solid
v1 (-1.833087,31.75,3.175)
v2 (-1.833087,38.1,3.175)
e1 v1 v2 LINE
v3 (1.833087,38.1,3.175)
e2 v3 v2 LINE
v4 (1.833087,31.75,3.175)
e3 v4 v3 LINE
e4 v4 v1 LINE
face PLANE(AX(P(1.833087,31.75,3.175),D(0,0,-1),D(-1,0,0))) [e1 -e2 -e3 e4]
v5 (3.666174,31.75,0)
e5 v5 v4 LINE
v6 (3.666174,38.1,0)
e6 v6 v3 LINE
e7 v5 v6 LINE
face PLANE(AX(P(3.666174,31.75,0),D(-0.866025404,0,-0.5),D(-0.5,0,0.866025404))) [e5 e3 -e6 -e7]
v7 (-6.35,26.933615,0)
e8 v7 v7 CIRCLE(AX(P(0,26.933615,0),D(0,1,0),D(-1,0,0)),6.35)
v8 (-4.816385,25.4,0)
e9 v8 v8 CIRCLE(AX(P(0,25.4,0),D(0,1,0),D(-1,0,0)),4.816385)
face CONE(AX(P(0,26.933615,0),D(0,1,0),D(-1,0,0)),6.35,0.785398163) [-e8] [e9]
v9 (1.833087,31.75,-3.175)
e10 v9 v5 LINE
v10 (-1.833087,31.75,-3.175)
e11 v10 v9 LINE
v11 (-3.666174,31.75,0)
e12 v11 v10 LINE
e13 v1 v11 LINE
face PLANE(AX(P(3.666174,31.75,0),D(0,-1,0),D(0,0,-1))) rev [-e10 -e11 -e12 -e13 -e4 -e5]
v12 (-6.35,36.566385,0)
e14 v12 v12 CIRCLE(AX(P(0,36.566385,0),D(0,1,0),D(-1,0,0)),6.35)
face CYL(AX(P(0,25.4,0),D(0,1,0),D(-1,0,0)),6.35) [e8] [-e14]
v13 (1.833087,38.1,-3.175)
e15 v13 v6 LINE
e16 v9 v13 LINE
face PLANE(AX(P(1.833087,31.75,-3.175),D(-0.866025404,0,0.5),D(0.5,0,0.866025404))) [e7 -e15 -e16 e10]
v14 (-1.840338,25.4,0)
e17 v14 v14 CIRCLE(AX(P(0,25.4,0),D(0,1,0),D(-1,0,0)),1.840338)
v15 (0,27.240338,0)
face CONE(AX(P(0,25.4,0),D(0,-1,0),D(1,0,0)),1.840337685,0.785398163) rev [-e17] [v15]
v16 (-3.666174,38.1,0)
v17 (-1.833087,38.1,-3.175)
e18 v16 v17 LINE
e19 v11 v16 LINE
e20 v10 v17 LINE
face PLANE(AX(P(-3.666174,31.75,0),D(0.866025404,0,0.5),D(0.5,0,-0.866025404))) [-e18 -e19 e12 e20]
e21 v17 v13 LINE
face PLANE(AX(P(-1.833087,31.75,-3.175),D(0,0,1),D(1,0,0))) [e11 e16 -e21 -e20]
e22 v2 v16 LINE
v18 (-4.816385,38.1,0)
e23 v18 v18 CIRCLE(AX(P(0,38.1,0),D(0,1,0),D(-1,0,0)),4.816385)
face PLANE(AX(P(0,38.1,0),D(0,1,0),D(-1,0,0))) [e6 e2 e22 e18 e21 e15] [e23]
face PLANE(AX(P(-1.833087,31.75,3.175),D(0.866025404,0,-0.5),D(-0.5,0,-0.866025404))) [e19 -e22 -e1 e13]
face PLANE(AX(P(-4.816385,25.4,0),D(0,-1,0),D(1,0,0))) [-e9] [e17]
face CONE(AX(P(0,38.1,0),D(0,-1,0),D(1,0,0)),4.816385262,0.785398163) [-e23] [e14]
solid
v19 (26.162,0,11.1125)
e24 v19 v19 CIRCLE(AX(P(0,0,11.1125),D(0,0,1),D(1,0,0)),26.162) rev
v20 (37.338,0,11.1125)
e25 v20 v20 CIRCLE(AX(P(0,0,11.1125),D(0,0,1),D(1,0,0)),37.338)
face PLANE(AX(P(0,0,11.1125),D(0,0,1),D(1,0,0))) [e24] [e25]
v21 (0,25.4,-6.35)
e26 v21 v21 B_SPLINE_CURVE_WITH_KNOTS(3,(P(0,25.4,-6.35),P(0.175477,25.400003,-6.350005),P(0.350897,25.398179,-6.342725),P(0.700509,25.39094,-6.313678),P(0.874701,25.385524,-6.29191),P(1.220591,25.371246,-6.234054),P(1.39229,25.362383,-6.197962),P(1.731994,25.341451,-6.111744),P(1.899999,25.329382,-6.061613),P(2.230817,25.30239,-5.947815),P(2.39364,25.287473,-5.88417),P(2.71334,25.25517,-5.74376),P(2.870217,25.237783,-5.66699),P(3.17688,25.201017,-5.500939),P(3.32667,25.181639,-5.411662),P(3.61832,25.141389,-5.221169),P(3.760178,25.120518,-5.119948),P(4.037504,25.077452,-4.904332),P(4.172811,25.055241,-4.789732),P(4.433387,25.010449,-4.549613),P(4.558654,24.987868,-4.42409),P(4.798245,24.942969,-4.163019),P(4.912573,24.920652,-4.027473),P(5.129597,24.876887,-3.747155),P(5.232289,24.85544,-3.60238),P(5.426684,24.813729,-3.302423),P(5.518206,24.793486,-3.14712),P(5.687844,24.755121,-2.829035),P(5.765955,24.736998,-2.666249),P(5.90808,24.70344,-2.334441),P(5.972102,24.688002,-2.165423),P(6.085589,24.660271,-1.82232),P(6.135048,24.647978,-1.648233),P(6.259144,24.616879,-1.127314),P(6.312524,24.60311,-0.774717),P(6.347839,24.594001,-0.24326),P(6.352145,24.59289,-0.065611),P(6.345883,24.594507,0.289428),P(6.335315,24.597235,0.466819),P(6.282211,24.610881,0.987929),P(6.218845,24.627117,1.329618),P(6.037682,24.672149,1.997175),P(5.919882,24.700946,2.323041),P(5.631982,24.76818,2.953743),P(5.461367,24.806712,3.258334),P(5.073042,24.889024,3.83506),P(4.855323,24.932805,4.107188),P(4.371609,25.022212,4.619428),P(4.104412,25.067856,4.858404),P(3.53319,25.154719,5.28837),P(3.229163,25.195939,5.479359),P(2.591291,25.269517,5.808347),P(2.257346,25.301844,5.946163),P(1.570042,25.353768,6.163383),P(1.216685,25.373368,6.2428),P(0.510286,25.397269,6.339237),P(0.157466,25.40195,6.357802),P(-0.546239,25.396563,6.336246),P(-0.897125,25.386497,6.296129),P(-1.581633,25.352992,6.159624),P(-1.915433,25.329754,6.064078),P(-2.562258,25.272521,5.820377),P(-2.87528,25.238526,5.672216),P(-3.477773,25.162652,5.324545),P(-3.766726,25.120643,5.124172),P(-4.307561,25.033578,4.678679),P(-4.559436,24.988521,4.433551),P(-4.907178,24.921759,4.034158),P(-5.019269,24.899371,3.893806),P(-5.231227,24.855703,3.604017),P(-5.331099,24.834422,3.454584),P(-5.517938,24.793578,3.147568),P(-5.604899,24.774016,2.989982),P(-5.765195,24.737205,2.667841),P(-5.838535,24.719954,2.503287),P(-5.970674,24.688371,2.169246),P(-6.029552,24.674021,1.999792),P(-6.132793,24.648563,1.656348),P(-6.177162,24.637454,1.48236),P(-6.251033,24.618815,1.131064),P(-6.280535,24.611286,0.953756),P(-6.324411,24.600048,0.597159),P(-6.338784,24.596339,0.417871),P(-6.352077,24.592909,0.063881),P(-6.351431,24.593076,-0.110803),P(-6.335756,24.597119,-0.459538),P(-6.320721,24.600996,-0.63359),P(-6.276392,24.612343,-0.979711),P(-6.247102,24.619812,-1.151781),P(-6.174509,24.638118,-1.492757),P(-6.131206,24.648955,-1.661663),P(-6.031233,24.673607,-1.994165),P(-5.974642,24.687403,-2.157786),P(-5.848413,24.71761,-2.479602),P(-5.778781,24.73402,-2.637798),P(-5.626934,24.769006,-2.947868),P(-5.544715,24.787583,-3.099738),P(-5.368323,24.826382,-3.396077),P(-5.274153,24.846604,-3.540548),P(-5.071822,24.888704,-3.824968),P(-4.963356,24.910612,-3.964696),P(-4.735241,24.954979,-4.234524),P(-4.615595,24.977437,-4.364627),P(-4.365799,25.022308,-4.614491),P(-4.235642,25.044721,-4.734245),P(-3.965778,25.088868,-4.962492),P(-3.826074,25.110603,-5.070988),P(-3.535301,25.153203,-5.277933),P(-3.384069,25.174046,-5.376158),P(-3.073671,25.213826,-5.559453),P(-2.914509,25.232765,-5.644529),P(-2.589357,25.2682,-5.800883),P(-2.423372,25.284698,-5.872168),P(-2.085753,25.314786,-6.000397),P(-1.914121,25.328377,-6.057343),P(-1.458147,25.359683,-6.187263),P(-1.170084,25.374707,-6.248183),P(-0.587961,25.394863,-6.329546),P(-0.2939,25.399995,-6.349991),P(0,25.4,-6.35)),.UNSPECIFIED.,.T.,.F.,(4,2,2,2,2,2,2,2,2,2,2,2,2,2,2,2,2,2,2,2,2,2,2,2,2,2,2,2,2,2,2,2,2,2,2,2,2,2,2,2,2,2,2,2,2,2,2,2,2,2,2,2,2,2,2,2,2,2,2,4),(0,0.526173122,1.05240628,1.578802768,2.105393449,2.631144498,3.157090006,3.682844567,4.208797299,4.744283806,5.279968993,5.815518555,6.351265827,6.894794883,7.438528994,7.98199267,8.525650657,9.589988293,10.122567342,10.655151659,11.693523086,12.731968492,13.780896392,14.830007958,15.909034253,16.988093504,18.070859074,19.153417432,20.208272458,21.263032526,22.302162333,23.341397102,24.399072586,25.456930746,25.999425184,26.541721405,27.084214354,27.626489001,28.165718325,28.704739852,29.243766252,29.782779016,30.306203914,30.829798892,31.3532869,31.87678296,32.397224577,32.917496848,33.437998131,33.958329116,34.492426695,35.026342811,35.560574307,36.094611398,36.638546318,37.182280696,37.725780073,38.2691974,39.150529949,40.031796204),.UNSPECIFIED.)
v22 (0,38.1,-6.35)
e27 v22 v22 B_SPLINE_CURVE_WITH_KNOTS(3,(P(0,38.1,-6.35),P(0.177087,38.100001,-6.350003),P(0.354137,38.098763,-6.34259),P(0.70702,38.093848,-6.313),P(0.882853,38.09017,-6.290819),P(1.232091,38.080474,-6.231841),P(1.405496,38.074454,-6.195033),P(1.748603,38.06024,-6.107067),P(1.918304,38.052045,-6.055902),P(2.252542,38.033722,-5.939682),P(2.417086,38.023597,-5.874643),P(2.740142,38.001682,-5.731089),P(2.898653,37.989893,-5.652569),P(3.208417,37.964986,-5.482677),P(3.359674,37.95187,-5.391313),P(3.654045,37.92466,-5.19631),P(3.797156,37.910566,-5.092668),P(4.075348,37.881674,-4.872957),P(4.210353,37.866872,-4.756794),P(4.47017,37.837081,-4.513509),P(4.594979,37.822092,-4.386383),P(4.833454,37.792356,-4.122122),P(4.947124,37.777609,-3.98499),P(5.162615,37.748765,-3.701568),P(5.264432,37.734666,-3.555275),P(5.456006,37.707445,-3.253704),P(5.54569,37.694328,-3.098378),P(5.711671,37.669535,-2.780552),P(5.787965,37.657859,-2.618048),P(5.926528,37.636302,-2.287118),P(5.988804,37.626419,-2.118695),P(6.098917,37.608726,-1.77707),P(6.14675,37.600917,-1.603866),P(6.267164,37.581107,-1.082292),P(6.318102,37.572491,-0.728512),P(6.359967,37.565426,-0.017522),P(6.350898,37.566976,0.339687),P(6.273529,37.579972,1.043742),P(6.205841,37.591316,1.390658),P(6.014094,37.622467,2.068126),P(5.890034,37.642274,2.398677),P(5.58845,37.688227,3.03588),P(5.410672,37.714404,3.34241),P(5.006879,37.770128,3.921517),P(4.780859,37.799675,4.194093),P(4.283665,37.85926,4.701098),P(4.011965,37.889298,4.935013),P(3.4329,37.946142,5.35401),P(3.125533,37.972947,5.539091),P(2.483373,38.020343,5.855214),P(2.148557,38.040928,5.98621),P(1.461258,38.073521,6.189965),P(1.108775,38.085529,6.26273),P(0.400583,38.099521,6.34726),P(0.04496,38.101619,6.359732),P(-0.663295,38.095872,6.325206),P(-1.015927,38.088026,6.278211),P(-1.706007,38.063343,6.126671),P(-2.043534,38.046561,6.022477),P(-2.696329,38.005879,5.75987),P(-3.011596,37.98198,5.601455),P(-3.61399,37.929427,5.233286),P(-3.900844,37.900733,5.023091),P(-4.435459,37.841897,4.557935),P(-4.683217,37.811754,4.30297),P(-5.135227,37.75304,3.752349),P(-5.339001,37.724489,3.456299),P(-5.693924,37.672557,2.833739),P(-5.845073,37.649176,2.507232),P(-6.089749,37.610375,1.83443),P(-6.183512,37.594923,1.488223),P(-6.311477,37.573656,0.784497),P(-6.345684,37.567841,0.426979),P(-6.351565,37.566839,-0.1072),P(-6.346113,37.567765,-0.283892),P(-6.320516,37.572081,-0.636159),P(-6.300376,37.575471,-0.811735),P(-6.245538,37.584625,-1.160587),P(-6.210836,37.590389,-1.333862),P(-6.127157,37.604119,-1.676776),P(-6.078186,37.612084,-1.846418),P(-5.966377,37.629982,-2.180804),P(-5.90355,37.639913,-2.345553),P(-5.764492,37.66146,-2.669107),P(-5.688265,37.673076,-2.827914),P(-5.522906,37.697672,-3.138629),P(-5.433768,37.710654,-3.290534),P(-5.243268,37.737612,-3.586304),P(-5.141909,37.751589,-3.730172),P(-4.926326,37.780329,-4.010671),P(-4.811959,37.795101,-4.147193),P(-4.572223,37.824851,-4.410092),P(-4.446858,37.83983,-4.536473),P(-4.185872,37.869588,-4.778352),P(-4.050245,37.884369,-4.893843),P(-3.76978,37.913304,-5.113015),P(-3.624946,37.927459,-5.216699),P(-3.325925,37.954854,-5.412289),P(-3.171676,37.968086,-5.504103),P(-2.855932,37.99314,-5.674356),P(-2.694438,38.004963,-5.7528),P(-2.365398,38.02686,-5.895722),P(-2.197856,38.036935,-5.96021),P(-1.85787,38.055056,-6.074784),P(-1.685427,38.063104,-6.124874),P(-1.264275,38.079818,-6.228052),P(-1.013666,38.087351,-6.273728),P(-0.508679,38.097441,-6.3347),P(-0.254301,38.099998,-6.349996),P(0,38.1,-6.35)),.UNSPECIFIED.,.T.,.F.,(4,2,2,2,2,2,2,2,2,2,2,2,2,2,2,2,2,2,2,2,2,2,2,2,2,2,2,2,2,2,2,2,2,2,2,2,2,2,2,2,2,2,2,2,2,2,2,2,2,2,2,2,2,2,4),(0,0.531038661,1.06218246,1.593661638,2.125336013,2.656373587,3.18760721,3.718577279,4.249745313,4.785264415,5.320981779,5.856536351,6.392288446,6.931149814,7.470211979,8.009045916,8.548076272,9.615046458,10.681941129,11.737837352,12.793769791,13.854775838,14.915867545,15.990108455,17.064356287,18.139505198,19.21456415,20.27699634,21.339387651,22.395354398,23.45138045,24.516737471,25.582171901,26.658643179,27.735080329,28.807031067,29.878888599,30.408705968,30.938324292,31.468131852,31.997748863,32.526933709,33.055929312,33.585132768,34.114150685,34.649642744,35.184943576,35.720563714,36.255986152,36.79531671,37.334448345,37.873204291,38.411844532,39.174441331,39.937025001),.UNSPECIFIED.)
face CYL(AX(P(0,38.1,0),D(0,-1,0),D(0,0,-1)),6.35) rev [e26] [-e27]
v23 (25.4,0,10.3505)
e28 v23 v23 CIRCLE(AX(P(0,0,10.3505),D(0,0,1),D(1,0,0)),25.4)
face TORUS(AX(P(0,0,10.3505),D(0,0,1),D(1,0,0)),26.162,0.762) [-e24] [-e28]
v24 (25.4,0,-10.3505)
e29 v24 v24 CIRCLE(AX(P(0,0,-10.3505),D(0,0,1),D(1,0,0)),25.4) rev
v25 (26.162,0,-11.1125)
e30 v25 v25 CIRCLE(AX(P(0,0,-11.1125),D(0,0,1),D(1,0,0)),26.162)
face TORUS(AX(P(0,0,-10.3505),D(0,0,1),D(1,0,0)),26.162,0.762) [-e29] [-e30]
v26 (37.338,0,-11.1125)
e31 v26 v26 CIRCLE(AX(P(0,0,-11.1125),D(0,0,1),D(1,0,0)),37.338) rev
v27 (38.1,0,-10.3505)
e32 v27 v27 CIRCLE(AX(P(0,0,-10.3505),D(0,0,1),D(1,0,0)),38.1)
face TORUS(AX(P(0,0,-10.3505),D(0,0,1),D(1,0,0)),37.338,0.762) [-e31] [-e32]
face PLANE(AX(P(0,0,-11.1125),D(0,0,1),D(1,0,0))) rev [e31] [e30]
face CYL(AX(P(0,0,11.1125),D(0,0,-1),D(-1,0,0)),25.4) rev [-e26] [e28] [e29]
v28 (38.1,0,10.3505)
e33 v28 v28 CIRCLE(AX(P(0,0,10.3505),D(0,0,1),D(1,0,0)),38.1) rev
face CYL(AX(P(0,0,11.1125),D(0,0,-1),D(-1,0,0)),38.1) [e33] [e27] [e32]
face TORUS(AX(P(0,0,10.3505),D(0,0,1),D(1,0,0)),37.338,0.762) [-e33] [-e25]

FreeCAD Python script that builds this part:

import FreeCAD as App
import Part
import Sketcher

V = App.Vector
Q = App.Units.Quantity


def edges_at(feature, points):
    """Names of the edges that pass closest to the given points."""
    edges = feature.Shape.Edges
    near = lambda p: min(range(len(edges)), key=lambda i: edges[i].distToShape(Part.Vertex(*p))[0])
    return sorted({f"Edge{near(p) + 1}" for p in points})


def add_polygon(sketch, points):
    """Adds a closed chain of lines whose ends are joined by coincident constraints."""
    first, n = sketch.GeometryCount, len(points)
    for a, b in zip(points, points[1:] + points[:1]):
        sketch.addGeometry(Part.LineSegment(App.Vector(*a, 0), App.Vector(*b, 0)), False)
    for i in range(n):
        sketch.addConstraint(Sketcher.Constraint("Coincident", first + i, 2, first + (i + 1) % n, 1))

doc = App.newDocument("Part")
body = doc.addObject("PartDesign::Body", "Body")

# Sketch on XY plane
sketch1 = body.newObject("Sketcher::SketchObject", "Sketch")
sketch1.AttachmentSupport = (doc.getObject("XY_Plane"), [""])
sketch1.MapMode = "FlatFace"
sketch1.addGeometry(Part.Circle(V(0, 0, 0), V(0, 0, 1), 38.1), False)
sketch1.addGeometry(Part.Circle(V(0, 0, 0), V(0, 0, 1), 25.4), False)
sketch1.addConstraint(Sketcher.Constraint("Coincident", 0, 3, -1, 1))
sketch1.addConstraint(Sketcher.Constraint("Coincident", 1, 3, -1, 1))
sketch1.addConstraint(Sketcher.Constraint("Diameter", 0, Q("3 in")))
sketch1.addConstraint(Sketcher.Constraint("Diameter", 1, Q("2 in")))
pad1 = body.newObject("PartDesign::Pad", "Pad")
pad1.Profile = sketch1
pad1.Length = Q("0.875 in")
pad1.Midplane = True

# Sketch on XZ plane
sketch2 = body.newObject("Sketcher::SketchObject", "Sketch001")
sketch2.AttachmentSupport = (doc.getObject("XZ_Plane"), [""])
sketch2.MapMode = "FlatFace"
sketch2.addGeometry(Part.Circle(V(0, 0, 0), V(0, 0, 1), 6.35), False)
sketch2.addConstraint(Sketcher.Constraint("Coincident", 0, 3, -1, 1))
sketch2.addConstraint(Sketcher.Constraint("Diameter", 0, Q("0.5 in")))
pocket1 = body.newObject("PartDesign::Pocket", "Pocket")
pocket1.Profile = sketch2
pocket1.Type = "ThroughAll"
doc.recompute()

fillet = body.newObject("PartDesign::Fillet", "Fillet")
fillet.Base = (pocket1, edges_at(pocket1, [
    (-38.1, 0, -11.113),
    (-38.1, 0, 11.113),
    (-25.4, 0, -11.113),
    (-25.4, 0, 11.113),
]))
fillet.Radius = Q("0.03 in")
body2 = doc.addObject("PartDesign::Body", "Body001")

# Sketch on XY plane
sketch3 = body2.newObject("Sketcher::SketchObject", "Sketch002")
sketch3.AttachmentSupport = (doc.getObject("XY_Plane001"), [""])
sketch3.MapMode = "FlatFace"
add_polygon(sketch3, [(-4.816385, 25.4), (-1.840338, 25.4), (0, 27.240338), (0, 38.1), (-4.816385, 38.1), (-6.35, 36.566385), (-6.35, 26.933615)])  # lines 0-6
sketch3.addConstraint(Sketcher.Constraint("Horizontal", 0))
sketch3.addConstraint(Sketcher.Constraint("Vertical", 2))
sketch3.addConstraint(Sketcher.Constraint("Horizontal", 3))
sketch3.addConstraint(Sketcher.Constraint("Vertical", 5))
sketch3.addConstraint(Sketcher.Constraint("PointOnObject", 1, 2, -2))
sketch3.addConstraint(Sketcher.Constraint("Parallel", 1, 4))
sketch3.addConstraint(Sketcher.Constraint("Perpendicular", 4, 6))
sketch3.addConstraint(Sketcher.Constraint("Vertical", 3, 2, 6, 2))
sketch3.addConstraint(Sketcher.Constraint("Equal", 4, 6))
sketch3.addConstraint(Sketcher.Constraint("DistanceY", -1, 1, 0, 2, Q("1 in")))
sketch3.addConstraint(Sketcher.Constraint("DistanceY", -1, 1, 2, 2, Q("1.5 in")))
sketch3.addConstraint(Sketcher.Constraint("DistanceX", 4, 2, -1, 1, Q("0.25 in")))
sketch3.addConstraint(Sketcher.Constraint("DistanceY", 5, 2, 5, 1, 9.632771))
sketch3.addConstraint(Sketcher.Constraint("Distance", 1, 2.602631))
revolution = body2.newObject("PartDesign::Revolution", "Revolution")
revolution.Profile = sketch3
revolution.ReferenceAxis = (sketch3, ["V_Axis"])
revolution.Angle = 360

# Sketch on XZ plane
sketch4 = body2.newObject("Sketcher::SketchObject", "Sketch003")
sketch4.AttachmentSupport = (doc.getObject("XZ_Plane001"), [""])
sketch4.MapMode = "FlatFace"
sketch4.AttachmentOffset = App.Placement(V(0, 0, -1.5 * 25.4), App.Rotation())
add_polygon(sketch4, [(3.666174, 0), (1.833087, 3.175), (-1.833087, 3.175), (-3.666174, 0), (-1.833087, -3.175), (1.833087, -3.175)])  # lines 0-5
sketch4.addConstraint(Sketcher.Constraint("Horizontal", 1))
sketch4.addConstraint(Sketcher.Constraint("Horizontal", 4))
sketch4.addConstraint(Sketcher.Constraint("Symmetric", 0, 2, 3, 2, -1, 1))
sketch4.addConstraint(Sketcher.Constraint("Symmetric", 2, 2, 5, 2, -1, 1))
sketch4.addConstraint(Sketcher.Constraint("PointOnObject", 2, 2, -1))
sketch4.addConstraint(Sketcher.Constraint("Parallel", 2, 5))
sketch4.addConstraint(Sketcher.Constraint("Vertical", 1, 2, 3, 2))
sketch4.addConstraint(Sketcher.Constraint("Angle", 0, Q("120 deg")))
sketch4.addConstraint(Sketcher.Constraint("DistanceY", 3, 2, 1, 2, Q("0.25 in")))
sketch4.addConstraint(Sketcher.Constraint("DistanceX", 1, 2, 1, 1, 3.666174))
pocket2 = body2.newObject("PartDesign::Pocket", "Pocket001")
pocket2.Profile = sketch4
pocket2.Length = Q("0.25 in")
pocket2.Reversed = True

doc.recompute()
